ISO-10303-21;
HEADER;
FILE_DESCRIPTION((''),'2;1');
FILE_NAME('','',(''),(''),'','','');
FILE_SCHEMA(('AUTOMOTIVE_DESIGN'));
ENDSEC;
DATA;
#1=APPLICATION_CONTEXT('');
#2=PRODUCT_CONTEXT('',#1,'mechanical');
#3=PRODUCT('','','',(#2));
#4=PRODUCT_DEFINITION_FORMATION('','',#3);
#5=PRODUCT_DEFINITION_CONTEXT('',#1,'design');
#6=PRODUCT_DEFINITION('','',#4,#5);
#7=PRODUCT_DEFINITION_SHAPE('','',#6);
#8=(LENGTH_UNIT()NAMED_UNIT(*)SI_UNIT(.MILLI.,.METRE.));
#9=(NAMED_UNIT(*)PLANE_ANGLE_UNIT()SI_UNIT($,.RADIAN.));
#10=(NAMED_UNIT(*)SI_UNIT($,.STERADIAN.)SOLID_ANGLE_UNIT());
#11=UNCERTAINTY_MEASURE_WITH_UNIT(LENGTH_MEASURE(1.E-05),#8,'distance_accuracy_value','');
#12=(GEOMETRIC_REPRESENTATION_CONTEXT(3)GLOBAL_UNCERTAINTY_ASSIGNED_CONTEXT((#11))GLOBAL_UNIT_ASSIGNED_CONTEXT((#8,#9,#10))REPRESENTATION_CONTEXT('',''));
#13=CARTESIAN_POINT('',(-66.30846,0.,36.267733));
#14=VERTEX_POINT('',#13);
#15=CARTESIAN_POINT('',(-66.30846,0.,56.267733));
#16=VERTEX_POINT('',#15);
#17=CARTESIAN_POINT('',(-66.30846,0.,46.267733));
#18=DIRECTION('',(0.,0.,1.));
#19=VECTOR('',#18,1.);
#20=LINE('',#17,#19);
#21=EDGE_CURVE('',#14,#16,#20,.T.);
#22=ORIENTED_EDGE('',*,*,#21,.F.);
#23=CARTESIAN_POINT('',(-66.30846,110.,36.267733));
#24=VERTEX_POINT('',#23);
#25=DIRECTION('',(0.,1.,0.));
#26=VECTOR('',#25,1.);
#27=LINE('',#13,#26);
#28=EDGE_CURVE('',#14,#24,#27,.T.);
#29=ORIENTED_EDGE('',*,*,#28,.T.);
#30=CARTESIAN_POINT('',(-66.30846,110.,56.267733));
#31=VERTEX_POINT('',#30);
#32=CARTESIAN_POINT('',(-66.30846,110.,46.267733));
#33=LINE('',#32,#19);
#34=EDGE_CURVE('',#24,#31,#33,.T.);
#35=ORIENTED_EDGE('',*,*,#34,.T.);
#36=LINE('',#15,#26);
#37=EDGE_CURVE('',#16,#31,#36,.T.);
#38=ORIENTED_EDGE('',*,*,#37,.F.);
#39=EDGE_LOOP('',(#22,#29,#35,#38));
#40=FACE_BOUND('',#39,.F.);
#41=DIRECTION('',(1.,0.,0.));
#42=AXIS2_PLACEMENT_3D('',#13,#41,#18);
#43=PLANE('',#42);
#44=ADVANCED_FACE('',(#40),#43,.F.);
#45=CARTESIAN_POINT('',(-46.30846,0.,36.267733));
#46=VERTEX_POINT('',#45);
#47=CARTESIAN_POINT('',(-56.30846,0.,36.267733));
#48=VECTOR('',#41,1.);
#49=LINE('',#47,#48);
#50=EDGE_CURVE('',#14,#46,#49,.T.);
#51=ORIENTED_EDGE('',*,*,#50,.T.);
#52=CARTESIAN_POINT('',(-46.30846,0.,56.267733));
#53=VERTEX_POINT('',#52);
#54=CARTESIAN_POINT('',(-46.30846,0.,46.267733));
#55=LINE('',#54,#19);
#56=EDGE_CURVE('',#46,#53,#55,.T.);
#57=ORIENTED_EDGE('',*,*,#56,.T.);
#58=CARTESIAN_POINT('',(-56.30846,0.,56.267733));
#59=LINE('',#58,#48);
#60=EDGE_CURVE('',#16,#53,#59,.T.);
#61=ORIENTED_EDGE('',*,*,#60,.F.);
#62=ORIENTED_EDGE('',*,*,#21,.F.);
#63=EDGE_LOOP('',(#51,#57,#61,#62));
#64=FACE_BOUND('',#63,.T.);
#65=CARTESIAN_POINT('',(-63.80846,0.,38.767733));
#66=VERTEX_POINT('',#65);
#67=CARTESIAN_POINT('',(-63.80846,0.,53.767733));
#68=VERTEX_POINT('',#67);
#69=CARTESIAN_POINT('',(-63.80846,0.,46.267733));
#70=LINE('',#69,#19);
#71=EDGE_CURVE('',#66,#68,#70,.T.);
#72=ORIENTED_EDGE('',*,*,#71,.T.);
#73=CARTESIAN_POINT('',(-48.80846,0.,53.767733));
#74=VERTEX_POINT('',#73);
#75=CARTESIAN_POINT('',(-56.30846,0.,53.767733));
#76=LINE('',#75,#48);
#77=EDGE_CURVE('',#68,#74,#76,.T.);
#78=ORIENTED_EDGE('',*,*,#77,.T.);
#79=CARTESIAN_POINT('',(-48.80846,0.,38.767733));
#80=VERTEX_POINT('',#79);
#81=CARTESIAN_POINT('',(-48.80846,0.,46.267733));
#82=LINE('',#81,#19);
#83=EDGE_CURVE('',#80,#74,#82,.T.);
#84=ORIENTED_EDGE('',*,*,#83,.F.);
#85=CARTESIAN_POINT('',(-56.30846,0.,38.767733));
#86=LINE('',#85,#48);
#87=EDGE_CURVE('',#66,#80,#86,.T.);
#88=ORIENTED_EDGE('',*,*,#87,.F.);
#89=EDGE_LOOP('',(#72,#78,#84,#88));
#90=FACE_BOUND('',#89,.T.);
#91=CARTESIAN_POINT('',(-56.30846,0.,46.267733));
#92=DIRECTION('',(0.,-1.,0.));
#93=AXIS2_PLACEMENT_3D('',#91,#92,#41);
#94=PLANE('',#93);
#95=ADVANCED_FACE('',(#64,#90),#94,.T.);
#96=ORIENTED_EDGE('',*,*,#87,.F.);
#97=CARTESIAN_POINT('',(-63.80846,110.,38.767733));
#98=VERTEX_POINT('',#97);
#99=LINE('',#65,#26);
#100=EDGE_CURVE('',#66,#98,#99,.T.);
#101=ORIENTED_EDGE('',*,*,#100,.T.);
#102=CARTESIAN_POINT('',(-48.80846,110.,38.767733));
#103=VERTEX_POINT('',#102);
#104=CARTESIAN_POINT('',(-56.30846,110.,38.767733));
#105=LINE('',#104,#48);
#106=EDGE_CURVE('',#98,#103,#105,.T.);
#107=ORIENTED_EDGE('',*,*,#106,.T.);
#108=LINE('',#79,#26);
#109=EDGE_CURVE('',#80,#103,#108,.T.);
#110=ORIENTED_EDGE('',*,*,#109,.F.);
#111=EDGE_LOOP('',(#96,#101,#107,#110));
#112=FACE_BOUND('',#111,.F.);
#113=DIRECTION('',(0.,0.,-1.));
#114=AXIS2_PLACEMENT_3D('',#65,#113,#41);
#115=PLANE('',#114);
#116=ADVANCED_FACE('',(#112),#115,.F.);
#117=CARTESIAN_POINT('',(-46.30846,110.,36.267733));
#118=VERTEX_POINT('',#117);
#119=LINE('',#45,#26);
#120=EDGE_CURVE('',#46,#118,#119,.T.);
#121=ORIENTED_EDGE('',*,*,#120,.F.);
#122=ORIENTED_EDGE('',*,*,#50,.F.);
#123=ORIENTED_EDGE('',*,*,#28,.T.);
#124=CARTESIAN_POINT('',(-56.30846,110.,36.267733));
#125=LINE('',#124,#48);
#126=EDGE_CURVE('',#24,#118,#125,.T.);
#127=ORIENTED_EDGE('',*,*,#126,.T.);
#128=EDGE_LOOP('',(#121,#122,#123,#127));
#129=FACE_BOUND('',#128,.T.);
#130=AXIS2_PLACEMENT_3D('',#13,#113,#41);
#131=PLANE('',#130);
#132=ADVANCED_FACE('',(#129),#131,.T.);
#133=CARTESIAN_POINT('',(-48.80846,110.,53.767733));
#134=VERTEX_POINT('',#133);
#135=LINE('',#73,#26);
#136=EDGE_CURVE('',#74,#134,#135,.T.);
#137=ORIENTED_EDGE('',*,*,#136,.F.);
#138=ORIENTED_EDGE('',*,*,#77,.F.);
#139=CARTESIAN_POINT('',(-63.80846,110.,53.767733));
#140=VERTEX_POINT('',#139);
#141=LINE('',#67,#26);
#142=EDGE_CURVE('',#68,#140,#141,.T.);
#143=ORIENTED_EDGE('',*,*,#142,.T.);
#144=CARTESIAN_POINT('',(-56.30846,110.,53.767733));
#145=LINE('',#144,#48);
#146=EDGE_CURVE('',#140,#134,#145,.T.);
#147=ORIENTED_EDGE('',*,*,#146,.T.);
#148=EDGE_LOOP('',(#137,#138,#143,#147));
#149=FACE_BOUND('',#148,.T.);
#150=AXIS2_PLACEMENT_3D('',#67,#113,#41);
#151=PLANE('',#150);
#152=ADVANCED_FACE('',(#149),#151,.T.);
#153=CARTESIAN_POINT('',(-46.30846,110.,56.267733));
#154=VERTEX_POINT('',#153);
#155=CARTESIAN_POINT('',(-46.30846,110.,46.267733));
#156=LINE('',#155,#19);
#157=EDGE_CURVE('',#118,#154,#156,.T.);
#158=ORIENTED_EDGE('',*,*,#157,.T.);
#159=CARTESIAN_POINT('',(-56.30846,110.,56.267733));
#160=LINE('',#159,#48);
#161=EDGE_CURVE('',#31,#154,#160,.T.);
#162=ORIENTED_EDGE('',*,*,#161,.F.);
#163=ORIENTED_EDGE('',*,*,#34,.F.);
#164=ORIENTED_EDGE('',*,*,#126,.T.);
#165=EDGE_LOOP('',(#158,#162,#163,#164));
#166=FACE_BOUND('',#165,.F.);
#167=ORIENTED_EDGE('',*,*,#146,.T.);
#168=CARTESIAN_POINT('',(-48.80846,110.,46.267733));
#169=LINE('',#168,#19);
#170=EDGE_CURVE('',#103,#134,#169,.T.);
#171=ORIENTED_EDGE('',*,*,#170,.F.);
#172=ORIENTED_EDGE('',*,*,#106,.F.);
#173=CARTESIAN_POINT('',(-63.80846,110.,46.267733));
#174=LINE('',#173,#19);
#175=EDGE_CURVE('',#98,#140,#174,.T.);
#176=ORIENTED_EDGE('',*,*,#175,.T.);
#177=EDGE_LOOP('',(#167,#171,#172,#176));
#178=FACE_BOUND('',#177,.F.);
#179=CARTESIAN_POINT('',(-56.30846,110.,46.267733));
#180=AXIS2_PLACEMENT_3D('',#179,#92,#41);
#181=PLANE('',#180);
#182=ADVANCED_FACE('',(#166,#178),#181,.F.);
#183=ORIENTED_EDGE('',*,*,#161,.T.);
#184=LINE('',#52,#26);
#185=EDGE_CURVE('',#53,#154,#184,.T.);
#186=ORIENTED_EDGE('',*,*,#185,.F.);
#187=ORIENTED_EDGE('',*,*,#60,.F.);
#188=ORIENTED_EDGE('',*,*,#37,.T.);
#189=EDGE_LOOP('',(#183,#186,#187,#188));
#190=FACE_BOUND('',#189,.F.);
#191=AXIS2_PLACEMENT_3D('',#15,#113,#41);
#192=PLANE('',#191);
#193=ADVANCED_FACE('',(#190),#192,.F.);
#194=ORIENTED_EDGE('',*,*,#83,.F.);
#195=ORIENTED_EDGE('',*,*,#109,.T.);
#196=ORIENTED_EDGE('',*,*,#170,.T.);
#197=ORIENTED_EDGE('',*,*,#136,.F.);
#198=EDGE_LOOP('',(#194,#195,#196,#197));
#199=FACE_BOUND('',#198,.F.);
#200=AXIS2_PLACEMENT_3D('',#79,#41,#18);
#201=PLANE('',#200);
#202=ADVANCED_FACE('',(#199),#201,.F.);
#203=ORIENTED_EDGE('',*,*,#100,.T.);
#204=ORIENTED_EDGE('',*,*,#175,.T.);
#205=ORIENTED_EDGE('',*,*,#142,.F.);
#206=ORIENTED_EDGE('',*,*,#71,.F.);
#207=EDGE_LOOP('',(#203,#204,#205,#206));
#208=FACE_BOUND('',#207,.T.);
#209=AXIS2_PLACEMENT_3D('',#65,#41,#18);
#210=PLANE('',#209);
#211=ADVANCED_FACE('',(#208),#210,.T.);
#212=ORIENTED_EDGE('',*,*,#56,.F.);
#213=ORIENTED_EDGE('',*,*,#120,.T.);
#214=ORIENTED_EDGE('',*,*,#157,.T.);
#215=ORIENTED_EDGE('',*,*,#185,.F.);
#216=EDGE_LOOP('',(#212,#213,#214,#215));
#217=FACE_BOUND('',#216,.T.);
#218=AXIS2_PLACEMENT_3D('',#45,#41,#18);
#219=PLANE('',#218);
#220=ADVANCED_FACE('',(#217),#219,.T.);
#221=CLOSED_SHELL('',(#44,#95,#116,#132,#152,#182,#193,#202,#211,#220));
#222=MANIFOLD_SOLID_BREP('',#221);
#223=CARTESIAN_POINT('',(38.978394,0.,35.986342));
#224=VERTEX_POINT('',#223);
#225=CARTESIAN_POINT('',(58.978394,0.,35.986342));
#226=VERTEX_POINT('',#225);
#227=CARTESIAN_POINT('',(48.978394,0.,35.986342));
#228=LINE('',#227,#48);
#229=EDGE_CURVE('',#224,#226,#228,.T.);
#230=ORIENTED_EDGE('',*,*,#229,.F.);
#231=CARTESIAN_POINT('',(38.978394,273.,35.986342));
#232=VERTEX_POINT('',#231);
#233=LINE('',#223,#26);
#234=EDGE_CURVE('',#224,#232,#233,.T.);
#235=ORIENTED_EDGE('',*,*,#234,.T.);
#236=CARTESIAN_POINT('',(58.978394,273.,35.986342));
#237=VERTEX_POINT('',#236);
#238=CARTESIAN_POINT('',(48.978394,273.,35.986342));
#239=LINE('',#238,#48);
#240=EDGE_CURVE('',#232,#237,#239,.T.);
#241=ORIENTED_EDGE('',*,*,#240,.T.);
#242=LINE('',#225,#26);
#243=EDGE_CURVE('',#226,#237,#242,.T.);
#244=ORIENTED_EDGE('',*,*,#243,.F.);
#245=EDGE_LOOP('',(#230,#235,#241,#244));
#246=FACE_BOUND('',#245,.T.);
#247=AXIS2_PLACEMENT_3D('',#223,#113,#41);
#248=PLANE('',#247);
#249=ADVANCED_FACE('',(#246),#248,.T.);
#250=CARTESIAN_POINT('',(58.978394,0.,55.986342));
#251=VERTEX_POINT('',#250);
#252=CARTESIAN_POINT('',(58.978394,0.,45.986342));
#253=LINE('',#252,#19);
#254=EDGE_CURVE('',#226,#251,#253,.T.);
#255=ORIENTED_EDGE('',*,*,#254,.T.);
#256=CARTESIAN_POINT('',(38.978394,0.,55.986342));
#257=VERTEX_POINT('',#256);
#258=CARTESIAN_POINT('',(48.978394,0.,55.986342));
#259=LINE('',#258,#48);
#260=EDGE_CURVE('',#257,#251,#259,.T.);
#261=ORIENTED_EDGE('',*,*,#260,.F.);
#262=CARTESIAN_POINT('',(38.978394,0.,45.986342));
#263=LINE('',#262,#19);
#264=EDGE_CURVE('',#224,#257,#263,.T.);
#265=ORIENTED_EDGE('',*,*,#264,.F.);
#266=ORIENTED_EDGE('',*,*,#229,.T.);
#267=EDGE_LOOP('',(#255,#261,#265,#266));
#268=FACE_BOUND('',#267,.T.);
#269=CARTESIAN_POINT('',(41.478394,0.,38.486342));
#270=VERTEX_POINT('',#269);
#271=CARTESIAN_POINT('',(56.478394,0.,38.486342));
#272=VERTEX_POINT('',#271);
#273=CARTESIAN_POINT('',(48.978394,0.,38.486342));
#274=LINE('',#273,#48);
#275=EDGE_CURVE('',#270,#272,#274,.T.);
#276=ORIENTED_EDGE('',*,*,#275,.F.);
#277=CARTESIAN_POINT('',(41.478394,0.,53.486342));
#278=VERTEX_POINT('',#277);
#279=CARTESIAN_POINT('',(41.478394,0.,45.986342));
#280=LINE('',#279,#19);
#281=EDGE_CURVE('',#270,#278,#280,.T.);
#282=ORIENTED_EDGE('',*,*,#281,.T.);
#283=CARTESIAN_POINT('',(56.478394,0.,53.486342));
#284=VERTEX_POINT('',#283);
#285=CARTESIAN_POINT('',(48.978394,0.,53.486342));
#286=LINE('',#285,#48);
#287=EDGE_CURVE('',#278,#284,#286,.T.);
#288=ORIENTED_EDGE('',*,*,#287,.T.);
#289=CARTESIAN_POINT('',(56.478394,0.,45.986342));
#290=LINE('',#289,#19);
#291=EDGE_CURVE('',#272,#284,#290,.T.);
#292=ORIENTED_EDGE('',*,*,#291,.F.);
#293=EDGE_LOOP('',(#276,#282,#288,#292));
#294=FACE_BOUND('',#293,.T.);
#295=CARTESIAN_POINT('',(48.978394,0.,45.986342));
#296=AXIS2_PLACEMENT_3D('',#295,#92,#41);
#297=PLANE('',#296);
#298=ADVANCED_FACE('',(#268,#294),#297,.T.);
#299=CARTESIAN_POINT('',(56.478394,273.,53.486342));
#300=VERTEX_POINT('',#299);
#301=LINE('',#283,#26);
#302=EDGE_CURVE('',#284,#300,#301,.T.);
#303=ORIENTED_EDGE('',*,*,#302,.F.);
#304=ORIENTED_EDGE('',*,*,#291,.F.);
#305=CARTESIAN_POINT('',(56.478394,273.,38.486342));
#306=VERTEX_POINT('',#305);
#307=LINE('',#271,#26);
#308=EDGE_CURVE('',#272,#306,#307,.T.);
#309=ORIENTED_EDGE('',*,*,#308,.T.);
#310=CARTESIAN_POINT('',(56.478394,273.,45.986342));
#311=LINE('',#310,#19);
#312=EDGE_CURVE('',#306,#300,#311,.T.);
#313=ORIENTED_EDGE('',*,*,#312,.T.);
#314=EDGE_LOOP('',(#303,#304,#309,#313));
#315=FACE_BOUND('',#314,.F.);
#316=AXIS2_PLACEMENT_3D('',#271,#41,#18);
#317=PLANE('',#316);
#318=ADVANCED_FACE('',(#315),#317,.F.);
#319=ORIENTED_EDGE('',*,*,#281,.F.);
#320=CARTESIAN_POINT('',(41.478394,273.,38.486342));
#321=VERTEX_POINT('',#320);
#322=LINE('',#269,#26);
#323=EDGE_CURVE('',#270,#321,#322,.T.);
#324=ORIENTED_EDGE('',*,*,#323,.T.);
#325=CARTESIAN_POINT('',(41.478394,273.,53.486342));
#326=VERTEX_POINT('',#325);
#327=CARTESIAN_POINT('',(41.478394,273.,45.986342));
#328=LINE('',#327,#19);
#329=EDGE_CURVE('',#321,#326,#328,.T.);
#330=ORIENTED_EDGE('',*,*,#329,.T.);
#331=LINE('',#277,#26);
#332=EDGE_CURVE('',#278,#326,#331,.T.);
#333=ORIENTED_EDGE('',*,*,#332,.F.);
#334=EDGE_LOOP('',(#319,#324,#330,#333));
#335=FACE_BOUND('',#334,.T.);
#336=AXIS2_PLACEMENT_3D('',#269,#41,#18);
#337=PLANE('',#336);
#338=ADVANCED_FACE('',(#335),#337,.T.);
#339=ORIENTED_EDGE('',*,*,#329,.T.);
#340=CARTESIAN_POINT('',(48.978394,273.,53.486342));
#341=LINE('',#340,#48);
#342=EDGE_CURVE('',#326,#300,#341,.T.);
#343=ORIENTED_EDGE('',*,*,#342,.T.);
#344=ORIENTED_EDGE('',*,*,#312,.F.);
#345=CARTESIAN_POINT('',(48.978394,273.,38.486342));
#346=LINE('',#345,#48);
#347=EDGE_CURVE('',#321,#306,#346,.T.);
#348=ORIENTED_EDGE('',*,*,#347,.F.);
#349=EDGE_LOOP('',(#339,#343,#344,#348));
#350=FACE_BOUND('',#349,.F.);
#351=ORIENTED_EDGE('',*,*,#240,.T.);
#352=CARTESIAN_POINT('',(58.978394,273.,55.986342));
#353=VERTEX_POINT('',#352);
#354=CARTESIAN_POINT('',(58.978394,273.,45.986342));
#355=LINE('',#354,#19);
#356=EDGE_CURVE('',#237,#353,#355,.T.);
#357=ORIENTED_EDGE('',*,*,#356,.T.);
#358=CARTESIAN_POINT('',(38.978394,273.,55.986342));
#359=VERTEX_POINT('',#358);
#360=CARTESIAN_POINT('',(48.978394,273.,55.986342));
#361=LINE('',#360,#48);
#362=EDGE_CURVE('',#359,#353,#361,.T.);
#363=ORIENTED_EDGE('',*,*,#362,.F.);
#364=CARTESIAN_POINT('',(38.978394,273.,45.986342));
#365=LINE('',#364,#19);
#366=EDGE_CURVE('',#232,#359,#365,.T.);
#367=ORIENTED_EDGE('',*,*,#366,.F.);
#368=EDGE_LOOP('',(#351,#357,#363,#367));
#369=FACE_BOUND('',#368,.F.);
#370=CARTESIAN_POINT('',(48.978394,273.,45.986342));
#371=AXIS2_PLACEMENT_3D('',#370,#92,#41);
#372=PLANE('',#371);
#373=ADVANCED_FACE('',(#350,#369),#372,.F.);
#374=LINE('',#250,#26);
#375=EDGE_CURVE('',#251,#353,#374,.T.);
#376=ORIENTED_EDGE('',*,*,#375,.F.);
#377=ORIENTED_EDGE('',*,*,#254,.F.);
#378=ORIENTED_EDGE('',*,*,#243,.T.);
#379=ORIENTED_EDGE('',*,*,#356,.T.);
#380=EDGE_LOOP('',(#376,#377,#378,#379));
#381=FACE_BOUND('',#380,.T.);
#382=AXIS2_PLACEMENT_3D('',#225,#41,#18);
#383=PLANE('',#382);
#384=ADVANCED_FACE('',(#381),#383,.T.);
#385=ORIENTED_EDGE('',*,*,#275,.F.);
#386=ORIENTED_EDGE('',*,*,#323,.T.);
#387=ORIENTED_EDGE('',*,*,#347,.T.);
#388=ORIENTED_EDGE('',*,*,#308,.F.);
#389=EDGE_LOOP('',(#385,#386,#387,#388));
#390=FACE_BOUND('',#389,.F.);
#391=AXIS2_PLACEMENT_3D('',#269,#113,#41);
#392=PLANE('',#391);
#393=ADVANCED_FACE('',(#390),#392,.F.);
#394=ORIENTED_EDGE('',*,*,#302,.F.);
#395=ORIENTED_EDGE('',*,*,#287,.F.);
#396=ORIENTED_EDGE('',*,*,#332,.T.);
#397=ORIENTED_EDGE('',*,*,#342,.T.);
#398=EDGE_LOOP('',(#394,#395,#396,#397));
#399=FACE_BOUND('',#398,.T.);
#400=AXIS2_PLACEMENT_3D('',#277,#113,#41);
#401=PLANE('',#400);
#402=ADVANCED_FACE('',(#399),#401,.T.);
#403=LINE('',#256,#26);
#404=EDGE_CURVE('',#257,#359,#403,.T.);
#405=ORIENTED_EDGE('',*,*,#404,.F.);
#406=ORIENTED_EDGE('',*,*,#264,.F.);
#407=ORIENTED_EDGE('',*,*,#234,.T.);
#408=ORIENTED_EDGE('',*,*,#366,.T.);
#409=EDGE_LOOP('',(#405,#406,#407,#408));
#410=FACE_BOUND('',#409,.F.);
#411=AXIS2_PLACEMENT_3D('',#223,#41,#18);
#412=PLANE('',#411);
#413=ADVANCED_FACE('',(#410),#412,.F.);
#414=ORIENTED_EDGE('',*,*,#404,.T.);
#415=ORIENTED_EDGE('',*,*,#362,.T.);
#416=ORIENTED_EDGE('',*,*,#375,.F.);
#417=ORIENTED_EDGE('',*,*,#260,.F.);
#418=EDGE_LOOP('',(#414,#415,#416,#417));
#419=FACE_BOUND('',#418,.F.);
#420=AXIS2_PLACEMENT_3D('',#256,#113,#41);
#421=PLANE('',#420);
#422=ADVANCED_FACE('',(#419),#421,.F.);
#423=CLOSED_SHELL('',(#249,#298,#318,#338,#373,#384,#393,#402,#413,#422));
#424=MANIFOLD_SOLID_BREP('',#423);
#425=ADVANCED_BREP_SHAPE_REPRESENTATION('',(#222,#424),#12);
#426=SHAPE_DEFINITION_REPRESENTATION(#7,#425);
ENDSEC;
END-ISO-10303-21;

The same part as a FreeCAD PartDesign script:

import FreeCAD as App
import Part
import Sketcher

doc = App.newDocument("Part")
body = doc.addObject("PartDesign::Body", "Body")

# Sketch on XZ plane
sketch1 = body.newObject("Sketcher::SketchObject", "Sketch")
sketch1.AttachmentSupport = (doc.getObject("XZ_Plane"), [""])
sketch1.MapMode = "FlatFace"
sketch1.addGeometry(Part.LineSegment(App.Vector(-66, 56, 0), App.Vector(-66, 36, 0)), False)
sketch1.addGeometry(Part.LineSegment(App.Vector(-66, 36, 0), App.Vector(-46, 36, 0)), False)
sketch1.addGeometry(Part.LineSegment(App.Vector(-46, 36, 0), App.Vector(-46, 56, 0)), False)
sketch1.addGeometry(Part.LineSegment(App.Vector(-46, 56, 0), App.Vector(-66, 56, 0)), False)
sketch1.addGeometry(Part.LineSegment(App.Vector(-49, 39, 0), App.Vector(-64, 39, 0)), False)
sketch1.addGeometry(Part.LineSegment(App.Vector(-64, 39, 0), App.Vector(-64, 54, 0)), False)
sketch1.addGeometry(Part.LineSegment(App.Vector(-64, 54, 0), App.Vector(-49, 54, 0)), False)
sketch1.addGeometry(Part.LineSegment(App.Vector(-49, 54, 0), App.Vector(-49, 39, 0)), False)
sketch1.addConstraint(Sketcher.Constraint("Coincident", 0, 2, 1, 1))
sketch1.addConstraint(Sketcher.Constraint("Coincident", 1, 2, 2, 1))
sketch1.addConstraint(Sketcher.Constraint("Coincident", 2, 2, 3, 1))
sketch1.addConstraint(Sketcher.Constraint("Coincident", 3, 2, 0, 1))
sketch1.addConstraint(Sketcher.Constraint("Coincident", 4, 2, 5, 1))
sketch1.addConstraint(Sketcher.Constraint("Coincident", 5, 2, 6, 1))
sketch1.addConstraint(Sketcher.Constraint("Coincident", 6, 2, 7, 1))
sketch1.addConstraint(Sketcher.Constraint("Coincident", 7, 2, 4, 1))
sketch1.addConstraint(Sketcher.Constraint("Vertical", 0))
sketch1.addConstraint(Sketcher.Constraint("Horizontal", 1))
sketch1.addConstraint(Sketcher.Constraint("Vertical", 2))
sketch1.addConstraint(Sketcher.Constraint("Horizontal", 3))
sketch1.addConstraint(Sketcher.Constraint("Horizontal", 4))
sketch1.addConstraint(Sketcher.Constraint("Vertical", 5))
sketch1.addConstraint(Sketcher.Constraint("Horizontal", 6))
sketch1.addConstraint(Sketcher.Constraint("Vertical", 7))
sketch1.addConstraint(Sketcher.Constraint("Equal", 3, 0))
sketch1.addConstraint(Sketcher.Constraint("Equal", 6, 5))
sketch1.addConstraint(Sketcher.Constraint("DistanceX", 1, 1, 1, 2, 20.0))
sketch1.addConstraint(Sketcher.Constraint("DistanceX", 4, 2, 4, 1, 15.0))
sketch1.addConstraint(Sketcher.Constraint("DistanceX", 0, 2, 4, 2, 2.5))
sketch1.addConstraint(Sketcher.Constraint("DistanceY", 0, 2, 4, 2, 2.5))
sketch1.addConstraint(Sketcher.Constraint("DistanceX", 0, 2, -1, 1, 66.30846))
sketch1.addConstraint(Sketcher.Constraint("DistanceY", -1, 1, 0, 2, 36.267733))
pad1 = body.newObject("PartDesign::Pad", "Pad")
pad1.Profile = sketch1
pad1.Length = 110
pad1.Reversed = True
body2 = doc.addObject("PartDesign::Body", "Body001")

# Sketch on XZ plane
sketch2 = body2.newObject("Sketcher::SketchObject", "Sketch001")
sketch2.AttachmentSupport = (doc.getObject("XZ_Plane001"), [""])
sketch2.MapMode = "FlatFace"
sketch2.addGeometry(Part.LineSegment(App.Vector(39, 56, 0), App.Vector(39, 36, 0)), False)
sketch2.addGeometry(Part.LineSegment(App.Vector(39, 36, 0), App.Vector(59, 36, 0)), False)
sketch2.addGeometry(Part.LineSegment(App.Vector(59, 36, 0), App.Vector(59, 56, 0)), False)
sketch2.addGeometry(Part.LineSegment(App.Vector(59, 56, 0), App.Vector(39, 56, 0)), False)
sketch2.addGeometry(Part.LineSegment(App.Vector(56, 38, 0), App.Vector(41, 38, 0)), False)
sketch2.addGeometry(Part.LineSegment(App.Vector(41, 38, 0), App.Vector(41, 53, 0)), False)
sketch2.addGeometry(Part.LineSegment(App.Vector(41, 53, 0), App.Vector(56, 53, 0)), False)
sketch2.addGeometry(Part.LineSegment(App.Vector(56, 53, 0), App.Vector(56, 38, 0)), False)
sketch2.addConstraint(Sketcher.Constraint("Coincident", 0, 2, 1, 1))
sketch2.addConstraint(Sketcher.Constraint("Coincident", 1, 2, 2, 1))
sketch2.addConstraint(Sketcher.Constraint("Coincident", 2, 2, 3, 1))
sketch2.addConstraint(Sketcher.Constraint("Coincident", 3, 2, 0, 1))
sketch2.addConstraint(Sketcher.Constraint("Coincident", 4, 2, 5, 1))
sketch2.addConstraint(Sketcher.Constraint("Coincident", 5, 2, 6, 1))
sketch2.addConstraint(Sketcher.Constraint("Coincident", 6, 2, 7, 1))
sketch2.addConstraint(Sketcher.Constraint("Coincident", 7, 2, 4, 1))
sketch2.addConstraint(Sketcher.Constraint("Vertical", 0))
sketch2.addConstraint(Sketcher.Constraint("Horizontal", 1))
sketch2.addConstraint(Sketcher.Constraint("Vertical", 2))
sketch2.addConstraint(Sketcher.Constraint("Horizontal", 3))
sketch2.addConstraint(Sketcher.Constraint("Horizontal", 4))
sketch2.addConstraint(Sketcher.Constraint("Vertical", 5))
sketch2.addConstraint(Sketcher.Constraint("Horizontal", 6))
sketch2.addConstraint(Sketcher.Constraint("Vertical", 7))
sketch2.addConstraint(Sketcher.Constraint("Equal", 3, 0))
sketch2.addConstraint(Sketcher.Constraint("Equal", 6, 5))
sketch2.addConstraint(Sketcher.Constraint("DistanceX", 1, 1, 1, 2, 20.0))
sketch2.addConstraint(Sketcher.Constraint("DistanceX", 4, 2, 4, 1, 15.0))
sketch2.addConstraint(Sketcher.Constraint("DistanceX", 0, 2, 4, 2, 2.5))
sketch2.addConstraint(Sketcher.Constraint("DistanceY", 0, 2, 4, 2, 2.5))
sketch2.addConstraint(Sketcher.Constraint("DistanceX", -1, 1, 0, 2, 38.978394))
sketch2.addConstraint(Sketcher.Constraint("DistanceY", -1, 1, 0, 2, 35.986342))
pad2 = body2.newObject("PartDesign::Pad", "Pad001")
pad2.Profile = sketch2
pad2.Length = 273
pad2.Reversed = True

doc.recompute()
